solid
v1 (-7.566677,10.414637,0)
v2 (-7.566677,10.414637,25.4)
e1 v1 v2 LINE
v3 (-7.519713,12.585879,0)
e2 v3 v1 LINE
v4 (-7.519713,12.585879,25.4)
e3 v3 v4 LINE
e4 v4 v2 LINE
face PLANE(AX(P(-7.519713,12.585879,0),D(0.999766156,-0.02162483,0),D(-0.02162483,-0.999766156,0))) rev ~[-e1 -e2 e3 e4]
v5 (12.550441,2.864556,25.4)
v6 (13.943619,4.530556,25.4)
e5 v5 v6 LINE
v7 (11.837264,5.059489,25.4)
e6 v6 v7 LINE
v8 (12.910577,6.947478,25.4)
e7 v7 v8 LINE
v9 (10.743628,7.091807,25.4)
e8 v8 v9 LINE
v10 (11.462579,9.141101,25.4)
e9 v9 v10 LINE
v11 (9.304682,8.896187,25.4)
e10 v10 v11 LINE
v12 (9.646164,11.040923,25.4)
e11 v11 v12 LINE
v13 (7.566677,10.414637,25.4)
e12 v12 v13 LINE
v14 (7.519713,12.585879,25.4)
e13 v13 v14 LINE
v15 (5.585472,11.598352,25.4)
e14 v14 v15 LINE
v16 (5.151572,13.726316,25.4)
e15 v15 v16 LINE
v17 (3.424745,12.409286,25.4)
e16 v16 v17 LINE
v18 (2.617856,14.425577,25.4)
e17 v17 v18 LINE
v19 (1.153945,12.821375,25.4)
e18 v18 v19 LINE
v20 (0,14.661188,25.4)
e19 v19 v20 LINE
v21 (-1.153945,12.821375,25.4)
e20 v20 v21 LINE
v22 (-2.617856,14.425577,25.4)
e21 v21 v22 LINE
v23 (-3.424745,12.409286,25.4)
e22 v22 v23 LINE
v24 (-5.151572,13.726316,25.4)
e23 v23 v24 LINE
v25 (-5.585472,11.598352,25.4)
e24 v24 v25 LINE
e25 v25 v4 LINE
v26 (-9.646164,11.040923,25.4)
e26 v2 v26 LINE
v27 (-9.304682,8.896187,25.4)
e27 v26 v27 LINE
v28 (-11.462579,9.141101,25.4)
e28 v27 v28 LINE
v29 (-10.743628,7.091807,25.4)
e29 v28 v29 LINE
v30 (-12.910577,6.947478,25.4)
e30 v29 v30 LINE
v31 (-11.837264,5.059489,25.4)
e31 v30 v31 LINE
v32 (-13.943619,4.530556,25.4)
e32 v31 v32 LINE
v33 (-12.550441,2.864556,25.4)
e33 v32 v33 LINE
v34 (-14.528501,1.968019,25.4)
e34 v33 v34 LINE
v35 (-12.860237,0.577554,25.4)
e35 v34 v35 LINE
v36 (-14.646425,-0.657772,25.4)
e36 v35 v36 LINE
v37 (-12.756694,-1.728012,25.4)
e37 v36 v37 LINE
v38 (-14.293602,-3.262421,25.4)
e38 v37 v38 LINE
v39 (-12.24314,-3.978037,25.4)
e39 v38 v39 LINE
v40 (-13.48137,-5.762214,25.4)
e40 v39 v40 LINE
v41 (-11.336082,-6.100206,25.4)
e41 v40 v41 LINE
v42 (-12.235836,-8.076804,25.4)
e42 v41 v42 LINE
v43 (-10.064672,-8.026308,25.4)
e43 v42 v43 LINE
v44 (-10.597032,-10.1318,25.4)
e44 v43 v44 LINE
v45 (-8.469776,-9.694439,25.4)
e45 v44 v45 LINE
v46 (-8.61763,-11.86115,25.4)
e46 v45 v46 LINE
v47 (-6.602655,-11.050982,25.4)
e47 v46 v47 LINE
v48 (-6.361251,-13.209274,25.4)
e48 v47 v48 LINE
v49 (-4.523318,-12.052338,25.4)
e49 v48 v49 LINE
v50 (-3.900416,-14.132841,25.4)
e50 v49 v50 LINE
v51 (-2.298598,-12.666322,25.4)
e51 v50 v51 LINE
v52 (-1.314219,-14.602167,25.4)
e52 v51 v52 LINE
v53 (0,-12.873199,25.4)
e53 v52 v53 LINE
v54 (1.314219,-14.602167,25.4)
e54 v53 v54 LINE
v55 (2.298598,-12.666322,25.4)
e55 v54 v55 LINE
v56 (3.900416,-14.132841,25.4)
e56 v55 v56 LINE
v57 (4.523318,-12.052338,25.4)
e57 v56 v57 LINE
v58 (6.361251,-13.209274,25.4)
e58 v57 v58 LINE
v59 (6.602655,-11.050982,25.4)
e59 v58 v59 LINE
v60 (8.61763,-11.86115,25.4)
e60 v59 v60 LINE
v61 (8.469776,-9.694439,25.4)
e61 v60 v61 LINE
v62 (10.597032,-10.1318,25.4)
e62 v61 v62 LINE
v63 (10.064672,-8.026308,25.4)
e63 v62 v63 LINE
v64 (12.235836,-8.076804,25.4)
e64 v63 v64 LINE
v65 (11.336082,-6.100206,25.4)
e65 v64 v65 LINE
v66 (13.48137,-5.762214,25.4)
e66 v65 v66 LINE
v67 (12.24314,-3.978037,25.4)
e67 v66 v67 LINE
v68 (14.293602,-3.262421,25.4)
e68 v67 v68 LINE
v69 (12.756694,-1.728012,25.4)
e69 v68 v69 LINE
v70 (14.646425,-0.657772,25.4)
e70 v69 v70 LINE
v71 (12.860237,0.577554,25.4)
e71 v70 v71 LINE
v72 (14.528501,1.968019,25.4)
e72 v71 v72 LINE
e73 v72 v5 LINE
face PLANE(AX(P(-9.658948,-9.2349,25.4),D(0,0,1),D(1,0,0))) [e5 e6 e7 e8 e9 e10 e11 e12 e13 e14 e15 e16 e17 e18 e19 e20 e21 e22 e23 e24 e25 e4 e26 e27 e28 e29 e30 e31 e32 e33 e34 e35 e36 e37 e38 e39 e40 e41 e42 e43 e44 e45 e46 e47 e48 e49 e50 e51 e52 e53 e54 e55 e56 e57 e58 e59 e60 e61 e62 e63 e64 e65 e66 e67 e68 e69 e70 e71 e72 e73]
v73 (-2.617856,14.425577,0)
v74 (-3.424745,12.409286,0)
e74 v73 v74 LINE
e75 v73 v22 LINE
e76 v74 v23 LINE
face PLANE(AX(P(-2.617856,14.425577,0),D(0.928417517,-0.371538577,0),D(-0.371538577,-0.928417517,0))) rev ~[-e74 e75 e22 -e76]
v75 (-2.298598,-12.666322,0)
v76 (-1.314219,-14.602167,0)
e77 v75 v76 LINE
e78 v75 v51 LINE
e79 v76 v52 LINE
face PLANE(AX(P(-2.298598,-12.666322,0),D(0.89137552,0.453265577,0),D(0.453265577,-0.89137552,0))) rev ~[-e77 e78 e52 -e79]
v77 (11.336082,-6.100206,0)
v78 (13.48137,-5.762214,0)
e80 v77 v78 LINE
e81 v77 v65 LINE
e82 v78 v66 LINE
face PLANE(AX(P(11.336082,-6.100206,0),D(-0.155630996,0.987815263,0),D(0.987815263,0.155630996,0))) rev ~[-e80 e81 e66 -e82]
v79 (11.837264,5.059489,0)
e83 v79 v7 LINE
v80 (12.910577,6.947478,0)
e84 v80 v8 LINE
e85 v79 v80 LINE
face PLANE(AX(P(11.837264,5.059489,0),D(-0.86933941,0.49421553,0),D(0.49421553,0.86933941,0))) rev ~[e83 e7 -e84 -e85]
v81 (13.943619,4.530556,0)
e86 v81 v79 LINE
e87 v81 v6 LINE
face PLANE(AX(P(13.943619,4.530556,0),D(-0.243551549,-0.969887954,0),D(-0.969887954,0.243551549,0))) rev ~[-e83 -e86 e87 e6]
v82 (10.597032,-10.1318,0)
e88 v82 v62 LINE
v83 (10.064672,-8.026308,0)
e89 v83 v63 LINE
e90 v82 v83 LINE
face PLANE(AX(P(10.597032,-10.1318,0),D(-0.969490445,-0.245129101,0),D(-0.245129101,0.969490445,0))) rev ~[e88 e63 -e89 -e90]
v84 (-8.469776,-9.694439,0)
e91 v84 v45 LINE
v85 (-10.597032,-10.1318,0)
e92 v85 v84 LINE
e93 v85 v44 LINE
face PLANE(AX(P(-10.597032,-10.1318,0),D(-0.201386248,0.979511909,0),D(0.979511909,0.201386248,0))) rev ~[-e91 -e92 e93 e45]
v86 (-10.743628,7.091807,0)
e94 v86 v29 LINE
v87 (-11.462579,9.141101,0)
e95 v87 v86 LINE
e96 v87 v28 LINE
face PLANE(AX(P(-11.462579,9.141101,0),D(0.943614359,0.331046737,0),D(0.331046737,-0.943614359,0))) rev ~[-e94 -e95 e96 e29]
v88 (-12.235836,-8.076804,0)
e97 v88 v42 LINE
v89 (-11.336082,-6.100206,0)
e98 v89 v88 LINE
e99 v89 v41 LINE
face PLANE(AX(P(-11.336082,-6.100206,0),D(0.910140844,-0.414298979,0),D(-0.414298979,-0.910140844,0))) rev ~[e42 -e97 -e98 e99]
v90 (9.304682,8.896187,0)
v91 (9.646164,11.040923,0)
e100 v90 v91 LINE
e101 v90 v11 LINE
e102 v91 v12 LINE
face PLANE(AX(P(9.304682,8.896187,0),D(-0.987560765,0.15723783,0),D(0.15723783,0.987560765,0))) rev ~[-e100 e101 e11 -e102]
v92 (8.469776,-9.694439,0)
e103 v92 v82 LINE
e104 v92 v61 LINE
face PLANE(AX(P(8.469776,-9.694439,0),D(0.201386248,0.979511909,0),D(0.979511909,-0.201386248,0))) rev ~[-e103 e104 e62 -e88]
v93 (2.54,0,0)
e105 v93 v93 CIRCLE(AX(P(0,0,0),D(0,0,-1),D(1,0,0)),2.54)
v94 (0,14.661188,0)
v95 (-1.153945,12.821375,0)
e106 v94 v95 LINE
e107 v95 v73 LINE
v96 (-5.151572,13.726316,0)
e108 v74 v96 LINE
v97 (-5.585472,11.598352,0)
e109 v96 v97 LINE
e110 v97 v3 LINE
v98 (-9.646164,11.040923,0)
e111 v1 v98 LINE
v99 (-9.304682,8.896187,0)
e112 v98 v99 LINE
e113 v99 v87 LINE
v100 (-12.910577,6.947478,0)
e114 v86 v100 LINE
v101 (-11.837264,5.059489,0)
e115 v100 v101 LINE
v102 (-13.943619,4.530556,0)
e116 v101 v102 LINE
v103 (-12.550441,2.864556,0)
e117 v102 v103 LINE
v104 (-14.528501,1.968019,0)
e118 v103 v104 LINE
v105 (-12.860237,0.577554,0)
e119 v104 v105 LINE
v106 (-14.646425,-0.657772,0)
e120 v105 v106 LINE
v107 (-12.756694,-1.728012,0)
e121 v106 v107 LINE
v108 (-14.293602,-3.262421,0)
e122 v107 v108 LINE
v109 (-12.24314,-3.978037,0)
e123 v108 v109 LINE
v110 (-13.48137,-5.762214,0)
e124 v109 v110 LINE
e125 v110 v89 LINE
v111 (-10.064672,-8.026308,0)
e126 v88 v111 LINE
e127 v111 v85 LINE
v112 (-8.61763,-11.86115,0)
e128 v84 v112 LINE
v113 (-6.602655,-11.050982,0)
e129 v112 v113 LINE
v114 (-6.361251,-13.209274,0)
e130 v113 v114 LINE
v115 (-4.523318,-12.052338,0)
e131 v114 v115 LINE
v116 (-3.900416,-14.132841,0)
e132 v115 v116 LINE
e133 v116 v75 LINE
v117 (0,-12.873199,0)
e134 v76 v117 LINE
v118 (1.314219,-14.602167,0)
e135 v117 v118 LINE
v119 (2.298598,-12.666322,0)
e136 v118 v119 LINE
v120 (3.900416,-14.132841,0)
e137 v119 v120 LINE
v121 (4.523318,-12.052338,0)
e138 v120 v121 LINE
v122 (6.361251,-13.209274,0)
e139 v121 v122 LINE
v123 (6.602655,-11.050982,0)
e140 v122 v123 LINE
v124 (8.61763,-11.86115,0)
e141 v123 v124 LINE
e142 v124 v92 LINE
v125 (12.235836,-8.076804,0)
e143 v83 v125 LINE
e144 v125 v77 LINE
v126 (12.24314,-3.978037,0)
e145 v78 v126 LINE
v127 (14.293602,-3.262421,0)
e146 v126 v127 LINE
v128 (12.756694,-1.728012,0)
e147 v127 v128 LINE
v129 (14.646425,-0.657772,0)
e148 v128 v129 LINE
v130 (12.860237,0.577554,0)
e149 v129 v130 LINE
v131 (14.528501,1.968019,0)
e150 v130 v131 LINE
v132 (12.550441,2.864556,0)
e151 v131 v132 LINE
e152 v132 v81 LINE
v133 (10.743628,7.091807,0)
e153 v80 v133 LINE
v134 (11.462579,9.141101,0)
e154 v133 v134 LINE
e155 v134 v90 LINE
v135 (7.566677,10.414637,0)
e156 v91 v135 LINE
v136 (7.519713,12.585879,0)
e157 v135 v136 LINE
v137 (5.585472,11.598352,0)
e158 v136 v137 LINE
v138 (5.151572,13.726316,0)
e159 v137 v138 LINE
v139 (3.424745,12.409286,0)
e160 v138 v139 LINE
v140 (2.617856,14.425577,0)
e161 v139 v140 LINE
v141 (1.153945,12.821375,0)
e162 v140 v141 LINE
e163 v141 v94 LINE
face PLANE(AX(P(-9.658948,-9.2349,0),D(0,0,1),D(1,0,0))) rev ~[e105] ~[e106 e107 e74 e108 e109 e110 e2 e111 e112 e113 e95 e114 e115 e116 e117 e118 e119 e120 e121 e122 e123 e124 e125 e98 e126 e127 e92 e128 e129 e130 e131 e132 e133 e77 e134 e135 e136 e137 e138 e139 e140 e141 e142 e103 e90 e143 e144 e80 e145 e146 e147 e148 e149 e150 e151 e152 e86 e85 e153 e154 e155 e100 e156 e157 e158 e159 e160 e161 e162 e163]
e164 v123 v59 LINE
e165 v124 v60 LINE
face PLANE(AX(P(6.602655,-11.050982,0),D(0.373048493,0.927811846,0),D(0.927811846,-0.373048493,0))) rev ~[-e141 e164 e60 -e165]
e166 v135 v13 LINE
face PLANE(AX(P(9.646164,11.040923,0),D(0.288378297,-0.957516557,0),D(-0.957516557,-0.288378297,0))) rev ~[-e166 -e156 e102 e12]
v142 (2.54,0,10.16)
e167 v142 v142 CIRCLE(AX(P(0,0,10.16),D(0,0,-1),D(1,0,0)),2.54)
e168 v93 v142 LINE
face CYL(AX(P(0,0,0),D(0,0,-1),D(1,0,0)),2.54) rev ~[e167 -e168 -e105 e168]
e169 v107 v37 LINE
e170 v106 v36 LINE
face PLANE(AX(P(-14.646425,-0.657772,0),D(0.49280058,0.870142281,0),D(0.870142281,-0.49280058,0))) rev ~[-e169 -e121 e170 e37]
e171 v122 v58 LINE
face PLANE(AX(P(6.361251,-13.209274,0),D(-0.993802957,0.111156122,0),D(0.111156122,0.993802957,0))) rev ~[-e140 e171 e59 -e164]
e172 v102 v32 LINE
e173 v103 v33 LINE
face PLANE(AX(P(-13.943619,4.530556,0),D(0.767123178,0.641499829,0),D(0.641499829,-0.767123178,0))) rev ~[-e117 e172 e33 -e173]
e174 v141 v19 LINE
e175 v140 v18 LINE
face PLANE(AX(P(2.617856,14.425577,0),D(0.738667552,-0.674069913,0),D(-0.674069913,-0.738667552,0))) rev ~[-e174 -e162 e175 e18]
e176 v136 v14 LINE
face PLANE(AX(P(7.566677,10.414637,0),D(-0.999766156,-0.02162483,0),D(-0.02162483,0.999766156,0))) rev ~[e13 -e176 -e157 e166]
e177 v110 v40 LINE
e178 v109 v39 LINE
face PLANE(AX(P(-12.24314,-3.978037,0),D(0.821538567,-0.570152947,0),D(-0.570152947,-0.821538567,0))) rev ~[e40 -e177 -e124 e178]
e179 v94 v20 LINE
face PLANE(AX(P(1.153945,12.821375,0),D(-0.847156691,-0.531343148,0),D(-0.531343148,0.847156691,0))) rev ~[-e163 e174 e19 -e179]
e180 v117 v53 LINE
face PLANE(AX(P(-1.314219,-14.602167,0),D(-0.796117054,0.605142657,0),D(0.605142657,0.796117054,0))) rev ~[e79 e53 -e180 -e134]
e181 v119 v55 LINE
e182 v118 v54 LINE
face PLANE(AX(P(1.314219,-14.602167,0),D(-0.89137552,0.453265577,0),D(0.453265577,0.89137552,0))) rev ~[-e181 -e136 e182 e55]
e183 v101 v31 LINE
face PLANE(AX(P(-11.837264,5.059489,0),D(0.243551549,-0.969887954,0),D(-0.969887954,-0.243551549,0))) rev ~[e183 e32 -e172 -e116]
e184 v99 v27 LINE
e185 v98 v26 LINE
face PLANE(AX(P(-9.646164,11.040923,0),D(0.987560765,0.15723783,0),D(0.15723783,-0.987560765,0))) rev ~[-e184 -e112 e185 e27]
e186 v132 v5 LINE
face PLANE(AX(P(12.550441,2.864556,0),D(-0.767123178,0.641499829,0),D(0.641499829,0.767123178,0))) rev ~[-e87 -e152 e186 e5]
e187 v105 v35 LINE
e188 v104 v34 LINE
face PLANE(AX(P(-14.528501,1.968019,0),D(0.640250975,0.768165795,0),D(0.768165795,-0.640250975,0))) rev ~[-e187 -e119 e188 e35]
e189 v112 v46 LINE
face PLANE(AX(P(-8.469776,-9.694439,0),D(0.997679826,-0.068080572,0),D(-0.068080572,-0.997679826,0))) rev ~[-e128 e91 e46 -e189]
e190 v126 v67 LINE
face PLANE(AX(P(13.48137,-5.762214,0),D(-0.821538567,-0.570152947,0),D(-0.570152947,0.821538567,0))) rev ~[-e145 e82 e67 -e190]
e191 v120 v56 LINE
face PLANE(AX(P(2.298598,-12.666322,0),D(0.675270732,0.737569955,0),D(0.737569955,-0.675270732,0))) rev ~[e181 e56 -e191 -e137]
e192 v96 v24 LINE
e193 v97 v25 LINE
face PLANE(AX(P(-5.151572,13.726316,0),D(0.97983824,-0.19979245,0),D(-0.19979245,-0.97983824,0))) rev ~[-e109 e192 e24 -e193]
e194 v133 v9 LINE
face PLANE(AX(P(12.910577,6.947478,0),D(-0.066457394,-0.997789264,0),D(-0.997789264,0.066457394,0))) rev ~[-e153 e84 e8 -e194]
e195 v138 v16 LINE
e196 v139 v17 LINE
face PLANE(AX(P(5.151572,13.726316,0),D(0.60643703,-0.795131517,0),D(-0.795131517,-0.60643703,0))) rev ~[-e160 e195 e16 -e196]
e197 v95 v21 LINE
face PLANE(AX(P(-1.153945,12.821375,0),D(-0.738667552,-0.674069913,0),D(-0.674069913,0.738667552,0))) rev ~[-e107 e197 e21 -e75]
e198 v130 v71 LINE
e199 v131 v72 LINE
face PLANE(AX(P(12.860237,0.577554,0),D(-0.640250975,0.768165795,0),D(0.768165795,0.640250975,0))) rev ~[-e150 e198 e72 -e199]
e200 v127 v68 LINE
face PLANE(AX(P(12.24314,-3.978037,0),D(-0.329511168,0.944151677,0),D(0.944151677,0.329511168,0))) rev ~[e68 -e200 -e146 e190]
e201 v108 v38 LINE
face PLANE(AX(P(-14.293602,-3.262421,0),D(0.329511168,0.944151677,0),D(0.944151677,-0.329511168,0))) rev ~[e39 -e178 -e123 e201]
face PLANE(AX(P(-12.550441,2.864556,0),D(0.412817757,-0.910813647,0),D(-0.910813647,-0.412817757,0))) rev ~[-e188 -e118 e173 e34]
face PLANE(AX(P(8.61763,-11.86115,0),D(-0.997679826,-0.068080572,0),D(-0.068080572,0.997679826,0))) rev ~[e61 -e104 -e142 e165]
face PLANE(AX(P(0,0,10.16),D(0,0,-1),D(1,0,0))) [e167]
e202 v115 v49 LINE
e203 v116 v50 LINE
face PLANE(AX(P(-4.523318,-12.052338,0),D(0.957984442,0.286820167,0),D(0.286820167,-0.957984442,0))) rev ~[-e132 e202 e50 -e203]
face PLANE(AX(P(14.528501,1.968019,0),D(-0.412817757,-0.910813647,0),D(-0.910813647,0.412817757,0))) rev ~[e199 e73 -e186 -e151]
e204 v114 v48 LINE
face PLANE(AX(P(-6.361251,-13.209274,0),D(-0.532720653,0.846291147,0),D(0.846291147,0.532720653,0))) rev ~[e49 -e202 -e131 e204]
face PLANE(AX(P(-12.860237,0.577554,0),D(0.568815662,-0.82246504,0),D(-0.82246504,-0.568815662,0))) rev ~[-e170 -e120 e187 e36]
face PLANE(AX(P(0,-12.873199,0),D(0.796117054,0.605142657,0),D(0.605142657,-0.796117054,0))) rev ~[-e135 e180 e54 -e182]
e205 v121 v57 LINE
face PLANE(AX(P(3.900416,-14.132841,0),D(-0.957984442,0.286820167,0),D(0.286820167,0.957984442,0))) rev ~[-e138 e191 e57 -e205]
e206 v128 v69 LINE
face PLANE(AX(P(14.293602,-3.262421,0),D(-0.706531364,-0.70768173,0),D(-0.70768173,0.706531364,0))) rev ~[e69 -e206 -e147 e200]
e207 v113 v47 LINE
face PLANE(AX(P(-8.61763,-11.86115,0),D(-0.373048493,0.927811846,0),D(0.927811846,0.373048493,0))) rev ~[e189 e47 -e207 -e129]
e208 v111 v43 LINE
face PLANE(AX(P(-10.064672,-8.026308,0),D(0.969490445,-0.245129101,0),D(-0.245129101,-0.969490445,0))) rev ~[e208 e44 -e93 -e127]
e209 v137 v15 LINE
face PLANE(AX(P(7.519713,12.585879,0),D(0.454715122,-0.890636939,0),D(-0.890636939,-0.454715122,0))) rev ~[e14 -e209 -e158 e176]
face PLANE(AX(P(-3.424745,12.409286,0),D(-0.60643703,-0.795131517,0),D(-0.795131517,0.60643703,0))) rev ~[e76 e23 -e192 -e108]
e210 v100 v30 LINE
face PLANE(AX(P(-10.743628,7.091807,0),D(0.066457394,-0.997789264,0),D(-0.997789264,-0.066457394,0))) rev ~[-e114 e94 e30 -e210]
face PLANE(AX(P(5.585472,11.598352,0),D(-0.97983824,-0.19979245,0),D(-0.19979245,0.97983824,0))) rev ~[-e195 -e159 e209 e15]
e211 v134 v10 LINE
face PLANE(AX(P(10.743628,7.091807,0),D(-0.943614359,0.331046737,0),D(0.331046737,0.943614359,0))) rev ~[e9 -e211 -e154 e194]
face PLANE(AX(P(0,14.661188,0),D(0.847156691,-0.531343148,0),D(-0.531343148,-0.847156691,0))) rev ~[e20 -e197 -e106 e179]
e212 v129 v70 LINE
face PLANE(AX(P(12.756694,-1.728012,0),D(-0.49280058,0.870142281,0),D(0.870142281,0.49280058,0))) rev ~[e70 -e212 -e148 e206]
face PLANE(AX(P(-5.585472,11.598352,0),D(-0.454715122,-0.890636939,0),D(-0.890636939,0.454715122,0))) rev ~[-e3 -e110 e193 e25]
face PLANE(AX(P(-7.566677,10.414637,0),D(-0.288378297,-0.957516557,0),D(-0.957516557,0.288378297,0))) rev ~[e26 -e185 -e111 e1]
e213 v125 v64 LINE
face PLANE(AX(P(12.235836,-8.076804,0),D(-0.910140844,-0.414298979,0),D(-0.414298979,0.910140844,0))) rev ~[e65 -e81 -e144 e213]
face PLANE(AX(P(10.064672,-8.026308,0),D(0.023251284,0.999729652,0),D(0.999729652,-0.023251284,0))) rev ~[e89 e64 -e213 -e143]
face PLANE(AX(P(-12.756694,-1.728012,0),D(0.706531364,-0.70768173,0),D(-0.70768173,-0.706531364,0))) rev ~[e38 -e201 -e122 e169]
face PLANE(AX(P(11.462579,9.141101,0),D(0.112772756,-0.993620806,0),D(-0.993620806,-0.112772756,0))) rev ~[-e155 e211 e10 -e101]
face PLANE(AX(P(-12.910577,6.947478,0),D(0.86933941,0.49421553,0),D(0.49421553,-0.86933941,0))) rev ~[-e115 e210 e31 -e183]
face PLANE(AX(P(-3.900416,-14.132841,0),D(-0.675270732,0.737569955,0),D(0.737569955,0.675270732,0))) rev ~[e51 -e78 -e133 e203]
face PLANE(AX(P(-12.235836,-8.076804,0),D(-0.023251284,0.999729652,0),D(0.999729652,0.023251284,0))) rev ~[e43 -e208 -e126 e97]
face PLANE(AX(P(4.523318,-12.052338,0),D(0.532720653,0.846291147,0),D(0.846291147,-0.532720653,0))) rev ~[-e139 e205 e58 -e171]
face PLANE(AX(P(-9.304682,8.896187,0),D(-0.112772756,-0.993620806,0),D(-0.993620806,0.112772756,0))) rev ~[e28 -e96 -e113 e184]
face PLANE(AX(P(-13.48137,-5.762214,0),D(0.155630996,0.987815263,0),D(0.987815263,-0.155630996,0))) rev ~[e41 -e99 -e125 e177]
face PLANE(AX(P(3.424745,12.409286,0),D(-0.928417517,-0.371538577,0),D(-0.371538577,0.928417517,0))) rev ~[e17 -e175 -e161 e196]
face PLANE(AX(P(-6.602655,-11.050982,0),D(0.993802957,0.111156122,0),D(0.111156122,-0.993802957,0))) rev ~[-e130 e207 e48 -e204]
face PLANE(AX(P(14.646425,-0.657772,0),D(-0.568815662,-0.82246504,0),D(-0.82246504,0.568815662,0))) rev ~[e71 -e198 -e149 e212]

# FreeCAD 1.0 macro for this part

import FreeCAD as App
import Part
import Sketcher

V = App.Vector
Q = App.Units.Quantity

doc = App.newDocument("Part")
body = doc.addObject("PartDesign::Body", "Body")

# Sketch on XY plane
sketch1 = doc.addObject("Sketcher::SketchObject", "Sketch")
body.addObject(sketch1)
sketch1.AttachmentSupport = (doc.XY_Plane, [""])
sketch1.MapMode = "FlatFace"
sketch1.addGeometry(Part.LineSegment(V(2.6, 14.4, 0), V(1.2, 12.8, 0)), False)
sketch1.addGeometry(Part.LineSegment(V(1.2, 12.8, 0), V(0, 14.7, 0)), False)
sketch1.addGeometry(Part.LineSegment(V(0, 14.7, 0), V(-1.2, 12.8, 0)), False)
sketch1.addGeometry(Part.LineSegment(V(-1.2, 12.8, 0), V(-2.6, 14.4, 0)), False)
sketch1.addGeometry(Part.LineSegment(V(-2.6, 14.4, 0), V(-3.4, 12.4, 0)), False)
sketch1.addGeometry(Part.LineSegment(V(-3.4, 12.4, 0), V(-5.2, 13.7, 0)), False)
sketch1.addGeometry(Part.LineSegment(V(-5.2, 13.7, 0), V(-5.6, 11.6, 0)), False)
sketch1.addGeometry(Part.LineSegment(V(-5.6, 11.6, 0), V(-7.5, 12.6, 0)), False)
sketch1.addGeometry(Part.LineSegment(V(-7.5, 12.6, 0), V(-7.6, 10.4, 0)), False)
sketch1.addGeometry(Part.LineSegment(V(-7.6, 10.4, 0), V(-9.6, 11, 0)), False)
sketch1.addGeometry(Part.LineSegment(V(-9.6, 11, 0), V(-9.3, 8.9, 0)), False)
sketch1.addGeometry(Part.LineSegment(V(-9.3, 8.9, 0), V(-11.5, 9.1, 0)), False)
sketch1.addGeometry(Part.LineSegment(V(-11.5, 9.1, 0), V(-10.7, 7.1, 0)), False)
sketch1.addGeometry(Part.LineSegment(V(-10.7, 7.1, 0), V(-12.9, 6.9, 0)), False)
sketch1.addGeometry(Part.LineSegment(V(-12.9, 6.9, 0), V(-11.8, 5.1, 0)), False)
sketch1.addGeometry(Part.LineSegment(V(-11.8, 5.1, 0), V(-13.9, 4.5, 0)), False)
sketch1.addGeometry(Part.LineSegment(V(-13.9, 4.5, 0), V(-12.6, 2.9, 0)), False)
sketch1.addGeometry(Part.LineSegment(V(-12.6, 2.9, 0), V(-14.5, 2, 0)), False)
sketch1.addGeometry(Part.LineSegment(V(-14.5, 2, 0), V(-12.9, 0.6, 0)), False)
sketch1.addGeometry(Part.LineSegment(V(-12.9, 0.6, 0), V(-14.6, -0.7, 0)), False)
sketch1.addGeometry(Part.LineSegment(V(-14.6, -0.7, 0), V(-12.8, -1.7, 0)), False)
sketch1.addGeometry(Part.LineSegment(V(-12.8, -1.7, 0), V(-14.3, -3.3, 0)), False)
sketch1.addGeometry(Part.LineSegment(V(-14.3, -3.3, 0), V(-12.2, -4, 0)), False)
sketch1.addGeometry(Part.LineSegment(V(-12.2, -4, 0), V(-13.5, -5.8, 0)), False)
sketch1.addGeometry(Part.LineSegment(V(-13.5, -5.8, 0), V(-11.3, -6.1, 0)), False)
sketch1.addGeometry(Part.LineSegment(V(-11.3, -6.1, 0), V(-12.2, -8.1, 0)), False)
sketch1.addGeometry(Part.LineSegment(V(-12.2, -8.1, 0), V(-10.1, -8, 0)), False)
sketch1.addGeometry(Part.LineSegment(V(-10.1, -8, 0), V(-10.6, -10.1, 0)), False)
sketch1.addGeometry(Part.LineSegment(V(-10.6, -10.1, 0), V(-8.5, -9.7, 0)), False)
sketch1.addGeometry(Part.LineSegment(V(-8.5, -9.7, 0), V(-8.6, -11.9, 0)), False)
sketch1.addGeometry(Part.LineSegment(V(-8.6, -11.9, 0), V(-6.6, -11.1, 0)), False)
sketch1.addGeometry(Part.LineSegment(V(-6.6, -11.1, 0), V(-6.4, -13.2, 0)), False)
sketch1.addGeometry(Part.LineSegment(V(-6.4, -13.2, 0), V(-4.5, -12.1, 0)), False)
sketch1.addGeometry(Part.LineSegment(V(-4.5, -12.1, 0), V(-3.9, -14.1, 0)), False)
sketch1.addGeometry(Part.LineSegment(V(-3.9, -14.1, 0), V(-2.3, -12.7, 0)), False)
sketch1.addGeometry(Part.LineSegment(V(-2.3, -12.7, 0), V(-1.3, -14.6, 0)), False)
sketch1.addGeometry(Part.LineSegment(V(-1.3, -14.6, 0), V(0, -12.9, 0)), False)
sketch1.addGeometry(Part.LineSegment(V(0, -12.9, 0), V(1.3, -14.6, 0)), False)
sketch1.addGeometry(Part.LineSegment(V(1.3, -14.6, 0), V(2.3, -12.7, 0)), False)
sketch1.addGeometry(Part.LineSegment(V(2.3, -12.7, 0), V(3.9, -14.1, 0)), False)
sketch1.addGeometry(Part.LineSegment(V(3.9, -14.1, 0), V(4.5, -12.1, 0)), False)
sketch1.addGeometry(Part.LineSegment(V(4.5, -12.1, 0), V(6.4, -13.2, 0)), False)
sketch1.addGeometry(Part.LineSegment(V(6.4, -13.2, 0), V(6.6, -11.1, 0)), False)
sketch1.addGeometry(Part.LineSegment(V(6.6, -11.1, 0), V(8.6, -11.9, 0)), False)
sketch1.addGeometry(Part.LineSegment(V(8.6, -11.9, 0), V(8.5, -9.7, 0)), False)
sketch1.addGeometry(Part.LineSegment(V(8.5, -9.7, 0), V(10.6, -10.1, 0)), False)
sketch1.addGeometry(Part.LineSegment(V(10.6, -10.1, 0), V(10.1, -8, 0)), False)
sketch1.addGeometry(Part.LineSegment(V(10.1, -8, 0), V(12.2, -8.1, 0)), False)
sketch1.addGeometry(Part.LineSegment(V(12.2, -8.1, 0), V(11.3, -6.1, 0)), False)
sketch1.addGeometry(Part.LineSegment(V(11.3, -6.1, 0), V(13.5, -5.8, 0)), False)
sketch1.addGeometry(Part.LineSegment(V(13.5, -5.8, 0), V(12.2, -4, 0)), False)
sketch1.addGeometry(Part.LineSegment(V(12.2, -4, 0), V(14.3, -3.3, 0)), False)
sketch1.addGeometry(Part.LineSegment(V(14.3, -3.3, 0), V(12.8, -1.7, 0)), False)
sketch1.addGeometry(Part.LineSegment(V(12.8, -1.7, 0), V(14.6, -0.7, 0)), False)
sketch1.addGeometry(Part.LineSegment(V(14.6, -0.7, 0), V(12.9, 0.6, 0)), False)
sketch1.addGeometry(Part.LineSegment(V(12.9, 0.6, 0), V(14.5, 2, 0)), False)
sketch1.addGeometry(Part.LineSegment(V(14.5, 2, 0), V(12.6, 2.9, 0)), False)
sketch1.addGeometry(Part.LineSegment(V(12.6, 2.9, 0), V(13.9, 4.5, 0)), False)
sketch1.addGeometry(Part.LineSegment(V(13.9, 4.5, 0), V(11.8, 5.1, 0)), False)
sketch1.addGeometry(Part.LineSegment(V(11.8, 5.1, 0), V(12.9, 6.9, 0)), False)
sketch1.addGeometry(Part.LineSegment(V(12.9, 6.9, 0), V(10.7, 7.1, 0)), False)
sketch1.addGeometry(Part.LineSegment(V(10.7, 7.1, 0), V(11.5, 9.1, 0)), False)
sketch1.addGeometry(Part.LineSegment(V(11.5, 9.1, 0), V(9.3, 8.9, 0)), False)
sketch1.addGeometry(Part.LineSegment(V(9.3, 8.9, 0), V(9.6, 11, 0)), False)
sketch1.addGeometry(Part.LineSegment(V(9.6, 11, 0), V(7.6, 10.4, 0)), False)
sketch1.addGeometry(Part.LineSegment(V(7.6, 10.4, 0), V(7.5, 12.6, 0)), False)
sketch1.addGeometry(Part.LineSegment(V(7.5, 12.6, 0), V(5.6, 11.6, 0)), False)
sketch1.addGeometry(Part.LineSegment(V(5.6, 11.6, 0), V(5.2, 13.7, 0)), False)
sketch1.addGeometry(Part.LineSegment(V(5.2, 13.7, 0), V(3.4, 12.4, 0)), False)
sketch1.addGeometry(Part.LineSegment(V(3.4, 12.4, 0), V(2.6, 14.4, 0)), False)
sketch1.addConstraint(Sketcher.Constraint("Coincident", 0, 2, 1, 1))
sketch1.addConstraint(Sketcher.Constraint("Coincident", 1, 2, 2, 1))
sketch1.addConstraint(Sketcher.Constraint("Coincident", 2, 2, 3, 1))
sketch1.addConstraint(Sketcher.Constraint("Coincident", 3, 2, 4, 1))
sketch1.addConstraint(Sketcher.Constraint("Coincident", 4, 2, 5, 1))
sketch1.addConstraint(Sketcher.Constraint("Coincident", 5, 2, 6, 1))
sketch1.addConstraint(Sketcher.Constraint("Coincident", 6, 2, 7, 1))
sketch1.addConstraint(Sketcher.Constraint("Coincident", 7, 2, 8, 1))
sketch1.addConstraint(Sketcher.Constraint("Coincident", 8, 2, 9, 1))
sketch1.addConstraint(Sketcher.Constraint("Coincident", 9, 2, 10, 1))
sketch1.addConstraint(Sketcher.Constraint("Coincident", 10, 2, 11, 1))
sketch1.addConstraint(Sketcher.Constraint("Coincident", 11, 2, 12, 1))
sketch1.addConstraint(Sketcher.Constraint("Coincident", 12, 2, 13, 1))
sketch1.addConstraint(Sketcher.Constraint("Coincident", 13, 2, 14, 1))
sketch1.addConstraint(Sketcher.Constraint("Coincident", 14, 2, 15, 1))
sketch1.addConstraint(Sketcher.Constraint("Coincident", 15, 2, 16, 1))
sketch1.addConstraint(Sketcher.Constraint("Coincident", 16, 2, 17, 1))
sketch1.addConstraint(Sketcher.Constraint("Coincident", 17, 2, 18, 1))
sketch1.addConstraint(Sketcher.Constraint("Coincident", 18, 2, 19, 1))
sketch1.addConstraint(Sketcher.Constraint("Coincident", 19, 2, 20, 1))
sketch1.addConstraint(Sketcher.Constraint("Coincident", 20, 2, 21, 1))
sketch1.addConstraint(Sketcher.Constraint("Coincident", 21, 2, 22, 1))
sketch1.addConstraint(Sketcher.Constraint("Coincident", 22, 2, 23, 1))
sketch1.addConstraint(Sketcher.Constraint("Coincident", 23, 2, 24, 1))
sketch1.addConstraint(Sketcher.Constraint("Coincident", 24, 2, 25, 1))
sketch1.addConstraint(Sketcher.Constraint("Coincident", 25, 2, 26, 1))
sketch1.addConstraint(Sketcher.Constraint("Coincident", 26, 2, 27, 1))
sketch1.addConstraint(Sketcher.Constraint("Coincident", 27, 2, 28, 1))
sketch1.addConstraint(Sketcher.Constraint("Coincident", 28, 2, 29, 1))
sketch1.addConstraint(Sketcher.Constraint("Coincident", 29, 2, 30, 1))
sketch1.addConstraint(Sketcher.Constraint("Coincident", 30, 2, 31, 1))
sketch1.addConstraint(Sketcher.Constraint("Coincident", 31, 2, 32, 1))
sketch1.addConstraint(Sketcher.Constraint("Coincident", 32, 2, 33, 1))
sketch1.addConstraint(Sketcher.Constraint("Coincident", 33, 2, 34, 1))
sketch1.addConstraint(Sketcher.Constraint("Coincident", 34, 2, 35, 1))
sketch1.addConstraint(Sketcher.Constraint("Coincident", 35, 2, 36, 1))
sketch1.addConstraint(Sketcher.Constraint("Coincident", 36, 2, 37, 1))
sketch1.addConstraint(Sketcher.Constraint("Coincident", 37, 2, 38, 1))
sketch1.addConstraint(Sketcher.Constraint("Coincident", 38, 2, 39, 1))
sketch1.addConstraint(Sketcher.Constraint("Coincident", 39, 2, 40, 1))
sketch1.addConstraint(Sketcher.Constraint("Coincident", 40, 2, 41, 1))
sketch1.addConstraint(Sketcher.Constraint("Coincident", 41, 2, 42, 1))
sketch1.addConstraint(Sketcher.Constraint("Coincident", 42, 2, 43, 1))
sketch1.addConstraint(Sketcher.Constraint("Coincident", 43, 2, 44, 1))
sketch1.addConstraint(Sketcher.Constraint("Coincident", 44, 2, 45, 1))
sketch1.addConstraint(Sketcher.Constraint("Coincident", 45, 2, 46, 1))
sketch1.addConstraint(Sketcher.Constraint("Coincident", 46, 2, 47, 1))
sketch1.addConstraint(Sketcher.Constraint("Coincident", 47, 2, 48, 1))
sketch1.addConstraint(Sketcher.Constraint("Coincident", 48, 2, 49, 1))
sketch1.addConstraint(Sketcher.Constraint("Coincident", 49, 2, 50, 1))
sketch1.addConstraint(Sketcher.Constraint("Coincident", 50, 2, 51, 1))
sketch1.addConstraint(Sketcher.Constraint("Coincident", 51, 2, 52, 1))
sketch1.addConstraint(Sketcher.Constraint("Coincident", 52, 2, 53, 1))
sketch1.addConstraint(Sketcher.Constraint("Coincident", 53, 2, 54, 1))
sketch1.addConstraint(Sketcher.Constraint("Coincident", 54, 2, 55, 1))
sketch1.addConstraint(Sketcher.Constraint("Coincident", 55, 2, 56, 1))
sketch1.addConstraint(Sketcher.Constraint("Coincident", 56, 2, 57, 1))
sketch1.addConstraint(Sketcher.Constraint("Coincident", 57, 2, 58, 1))
sketch1.addConstraint(Sketcher.Constraint("Coincident", 58, 2, 59, 1))
sketch1.addConstraint(Sketcher.Constraint("Coincident", 59, 2, 60, 1))
sketch1.addConstraint(Sketcher.Constraint("Coincident", 60, 2, 61, 1))
sketch1.addConstraint(Sketcher.Constraint("Coincident", 61, 2, 62, 1))
sketch1.addConstraint(Sketcher.Constraint("Coincident", 62, 2, 63, 1))
sketch1.addConstraint(Sketcher.Constraint("Coincident", 63, 2, 64, 1))
sketch1.addConstraint(Sketcher.Constraint("Coincident", 64, 2, 65, 1))
sketch1.addConstraint(Sketcher.Constraint("Coincident", 65, 2, 66, 1))
sketch1.addConstraint(Sketcher.Constraint("Coincident", 66, 2, 67, 1))
sketch1.addConstraint(Sketcher.Constraint("Coincident", 67, 2, 68, 1))
sketch1.addConstraint(Sketcher.Constraint("Coincident", 68, 2, 69, 1))
sketch1.addConstraint(Sketcher.Constraint("Coincident", 69, 2, 0, 1))
sketch1.addConstraint(Sketcher.Constraint("Symmetric", 0, 2, 2, 2, -2))
sketch1.addConstraint(Sketcher.Constraint("Symmetric", 35, 2, 37, 2, -2))
sketch1.addConstraint(Sketcher.Constraint("Symmetric", 34, 2, 38, 2, -2))
sketch1.addConstraint(Sketcher.Constraint("Symmetric", 33, 2, 39, 2, -2))
sketch1.addConstraint(Sketcher.Constraint("Symmetric", 32, 2, 40, 2, -2))
sketch1.addConstraint(Sketcher.Constraint("Symmetric", 31, 2, 41, 2, -2))
sketch1.addConstraint(Sketcher.Constraint("Symmetric", 30, 2, 42, 2, -2))
sketch1.addConstraint(Sketcher.Constraint("Symmetric", 29, 2, 43, 2, -2))
sketch1.addConstraint(Sketcher.Constraint("Symmetric", 28, 2, 44, 2, -2))
sketch1.addConstraint(Sketcher.Constraint("Symmetric", 27, 2, 45, 2, -2))
sketch1.addConstraint(Sketcher.Constraint("Symmetric", 26, 2, 46, 2, -2))
sketch1.addConstraint(Sketcher.Constraint("Symmetric", 25, 2, 47, 2, -2))
sketch1.addConstraint(Sketcher.Constraint("Symmetric", 24, 2, 48, 2, -2))
sketch1.addConstraint(Sketcher.Constraint("Symmetric", 23, 2, 49, 2, -2))
sketch1.addConstraint(Sketcher.Constraint("Symmetric", 22, 2, 50, 2, -2))
sketch1.addConstraint(Sketcher.Constraint("Symmetric", 21, 2, 51, 2, -2))
sketch1.addConstraint(Sketcher.Constraint("Symmetric", 20, 2, 52, 2, -2))
sketch1.addConstraint(Sketcher.Constraint("Symmetric", 19, 2, 53, 2, -2))
sketch1.addConstraint(Sketcher.Constraint("Symmetric", 18, 2, 54, 2, -2))
sketch1.addConstraint(Sketcher.Constraint("Symmetric", 17, 2, 55, 2, -2))
sketch1.addConstraint(Sketcher.Constraint("Symmetric", 16, 2, 56, 2, -2))
sketch1.addConstraint(Sketcher.Constraint("Symmetric", 15, 2, 57, 2, -2))
sketch1.addConstraint(Sketcher.Constraint("Symmetric", 14, 2, 58, 2, -2))
sketch1.addConstraint(Sketcher.Constraint("Symmetric", 13, 2, 59, 2, -2))
sketch1.addConstraint(Sketcher.Constraint("Symmetric", 12, 2, 60, 2, -2))
sketch1.addConstraint(Sketcher.Constraint("Symmetric", 11, 2, 61, 2, -2))
sketch1.addConstraint(Sketcher.Constraint("Symmetric", 10, 2, 62, 2, -2))
sketch1.addConstraint(Sketcher.Constraint("Symmetric", 9, 2, 63, 2, -2))
sketch1.addConstraint(Sketcher.Constraint("Symmetric", 8, 2, 64, 2, -2))
sketch1.addConstraint(Sketcher.Constraint("Symmetric", 7, 2, 65, 2, -2))
sketch1.addConstraint(Sketcher.Constraint("Symmetric", 6, 2, 66, 2, -2))
sketch1.addConstraint(Sketcher.Constraint("Symmetric", 5, 2, 67, 2, -2))
sketch1.addConstraint(Sketcher.Constraint("Symmetric", 4, 2, 68, 2, -2))
sketch1.addConstraint(Sketcher.Constraint("Symmetric", 3, 2, 69, 2, -2))
sketch1.addConstraint(Sketcher.Constraint("PointOnObject", 1, 2, -2))
sketch1.addConstraint(Sketcher.Constraint("PointOnObject", 36, 2, -2))
sketch1.addConstraint(Sketcher.Constraint("Equal", 0, 1))
sketch1.addConstraint(Sketcher.Constraint("Equal", 3, 4))
sketch1.addConstraint(Sketcher.Constraint("Equal", 4, 5))
sketch1.addConstraint(Sketcher.Constraint("Equal", 5, 6))
sketch1.addConstraint(Sketcher.Constraint("Equal", 6, 7))
sketch1.addConstraint(Sketcher.Constraint("Equal", 7, 8))
sketch1.addConstraint(Sketcher.Constraint("Equal", 8, 9))
sketch1.addConstraint(Sketcher.Constraint("Equal", 9, 10))
sketch1.addConstraint(Sketcher.Constraint("Equal", 10, 11))
sketch1.addConstraint(Sketcher.Constraint("Equal", 11, 12))
sketch1.addConstraint(Sketcher.Constraint("Equal", 12, 13))
sketch1.addConstraint(Sketcher.Constraint("Equal", 13, 14))
sketch1.addConstraint(Sketcher.Constraint("Equal", 14, 15))
sketch1.addConstraint(Sketcher.Constraint("Equal", 15, 16))
sketch1.addConstraint(Sketcher.Constraint("Equal", 16, 17))
sketch1.addConstraint(Sketcher.Constraint("Equal", 17, 18))
sketch1.addConstraint(Sketcher.Constraint("Equal", 18, 19))
sketch1.addConstraint(Sketcher.Constraint("Equal", 19, 20))
sketch1.addConstraint(Sketcher.Constraint("Equal", 20, 21))
sketch1.addConstraint(Sketcher.Constraint("Equal", 21, 22))
sketch1.addConstraint(Sketcher.Constraint("Equal", 22, 23))
sketch1.addConstraint(Sketcher.Constraint("Equal", 23, 24))
sketch1.addConstraint(Sketcher.Constraint("Equal", 24, 25))
sketch1.addConstraint(Sketcher.Constraint("Equal", 25, 26))
sketch1.addConstraint(Sketcher.Constraint("Equal", 26, 27))
sketch1.addConstraint(Sketcher.Constraint("Equal", 27, 28))
sketch1.addConstraint(Sketcher.Constraint("Equal", 28, 29))
sketch1.addConstraint(Sketcher.Constraint("Equal", 29, 30))
sketch1.addConstraint(Sketcher.Constraint("Equal", 30, 31))
sketch1.addConstraint(Sketcher.Constraint("Equal", 31, 32))
sketch1.addConstraint(Sketcher.Constraint("Equal", 32, 33))
sketch1.addConstraint(Sketcher.Constraint("Equal", 33, 34))
sketch1.addConstraint(Sketcher.Constraint("Equal", 34, 35))
sketch1.addConstraint(Sketcher.Constraint("Equal", 35, 36))
sketch1.addConstraint(Sketcher.Constraint("DistanceY", -1, 1, 11, 2, Q("9.141101 mm")))
sketch1.addConstraint(Sketcher.Constraint("DistanceX", 17, 2, -1, 1, Q("14.528501 mm")))
sketch1.addConstraint(Sketcher.Constraint("DistanceX", 21, 2, -1, 1, Q("14.293602 mm")))
sketch1.addConstraint(Sketcher.Constraint("DistanceY", 27, 2, -1, 1, Q("10.1318 mm")))
sketch1.addConstraint(Sketcher.Constraint("DistanceX", 34, 2, -1, 1, Q("2.298598 mm")))
sketch1.addConstraint(Sketcher.Constraint("DistanceY", 36, 2, -1, 1, Q("12.873199 mm")))
sketch1.addConstraint(Sketcher.Constraint("Distance", 0, Q("2.17175 mm")))
sketch1.addConstraint(Sketcher.Constraint("DistanceY", -1, 1, 1, 2, Q("14.661188 mm")))
sketch1.addConstraint(Sketcher.Constraint("DistanceX", 6, 2, -1, 1, Q("5.585472 mm")))
sketch1.addConstraint(Sketcher.Constraint("DistanceY", -1, 1, 6, 2, Q("11.598352 mm")))
sketch1.addConstraint(Sketcher.Constraint("DistanceY", -1, 1, 7, 2, Q("12.585879 mm")))
sketch1.addConstraint(Sketcher.Constraint("DistanceX", 11, 2, -1, 1, Q("11.462579 mm")))
sketch1.addConstraint(Sketcher.Constraint("DistanceY", -1, 1, 14, 2, Q("5.059489 mm")))
sketch1.addConstraint(Sketcher.Constraint("DistanceX", 15, 2, -1, 1, Q("13.943619 mm")))
sketch1.addConstraint(Sketcher.Constraint("DistanceX", 16, 2, -1, 1, Q("12.550441 mm")))
sketch1.addConstraint(Sketcher.Constraint("DistanceY", -1, 1, 17, 2, Q("1.968019 mm")))
sketch1.addConstraint(Sketcher.Constraint("DistanceY", 19, 2, -1, 1, Q("0.657772 mm")))
sketch1.addConstraint(Sketcher.Constraint("DistanceY", 20, 2, -1, 1, Q("1.728012 mm")))
sketch1.addConstraint(Sketcher.Constraint("DistanceY", 21, 2, -1, 1, Q("3.262421 mm")))
sketch1.addConstraint(Sketcher.Constraint("DistanceX", 22, 2, -1, 1, Q("12.24314 mm")))
sketch1.addConstraint(Sketcher.Constraint("DistanceX", 23, 2, -1, 1, Q("13.48137 mm")))
sketch1.addConstraint(Sketcher.Constraint("DistanceX", 24, 2, -1, 1, Q("11.336082 mm")))
sketch1.addConstraint(Sketcher.Constraint("DistanceY", 26, 2, -1, 1, Q("8.026308 mm")))
sketch1.addConstraint(Sketcher.Constraint("DistanceX", 27, 2, -1, 1, Q("10.597032 mm")))
sketch1.addConstraint(Sketcher.Constraint("DistanceY", 28, 2, -1, 1, Q("9.694439 mm")))
sketch1.addConstraint(Sketcher.Constraint("DistanceX", 29, 2, -1, 1, Q("8.61763 mm")))
sketch1.addConstraint(Sketcher.Constraint("DistanceX", 31, 2, -1, 1, Q("6.361251 mm")))
sketch1.addConstraint(Sketcher.Constraint("DistanceX", 32, 2, -1, 1, Q("4.523318 mm")))
sketch1.addConstraint(Sketcher.Constraint("DistanceY", 33, 2, -1, 1, Q("14.132841 mm")))
sketch1.addConstraint(Sketcher.Constraint("DistanceY", 34, 2, -1, 1, Q("12.666322 mm")))
sketch1.addConstraint(Sketcher.Constraint("DistanceX", -1, 1, 0, 2, Q("1.153945 mm")))
sketch1.addConstraint(Sketcher.Constraint("DistanceX", 3, 2, -1, 1, Q("2.617856 mm")))
sketch1.addConstraint(Sketcher.Constraint("DistanceX", 4, 2, -1, 1, Q("3.424745 mm")))
sketch1.addConstraint(Sketcher.Constraint("DistanceX", 8, 2, -1, 1, Q("7.566677 mm")))
sketch1.addConstraint(Sketcher.Constraint("DistanceX", 9, 2, -1, 1, Q("9.646164 mm")))
sketch1.addConstraint(Sketcher.Constraint("DistanceX", 12, 2, -1, 1, Q("10.743628 mm")))
pad1 = doc.addObject("PartDesign::Pad", "Pad")
body.addObject(pad1)
pad1.Profile = sketch1
pad1.Length = Q("1 in")

# Sketch on XY plane
sketch2 = doc.addObject("Sketcher::SketchObject", "Sketch001")
body.addObject(sketch2)
sketch2.AttachmentSupport = (doc.XY_Plane, [""])
sketch2.MapMode = "FlatFace"
sketch2.addGeometry(Part.Circle(V(0, 0, 0), V(0, 0, 1), 2.5), False)
sketch2.addConstraint(Sketcher.Constraint("Coincident", 0, 3, -1, 1))
sketch2.addConstraint(Sketcher.Constraint("Diameter", 0, Q("0.2 in")))
pocket1 = doc.addObject("PartDesign::Pocket", "Pocket")
body.addObject(pocket1)
pocket1.Profile = sketch2
pocket1.Length = Q("0.4 in")
pocket1.Reversed = True

doc.recompute()
